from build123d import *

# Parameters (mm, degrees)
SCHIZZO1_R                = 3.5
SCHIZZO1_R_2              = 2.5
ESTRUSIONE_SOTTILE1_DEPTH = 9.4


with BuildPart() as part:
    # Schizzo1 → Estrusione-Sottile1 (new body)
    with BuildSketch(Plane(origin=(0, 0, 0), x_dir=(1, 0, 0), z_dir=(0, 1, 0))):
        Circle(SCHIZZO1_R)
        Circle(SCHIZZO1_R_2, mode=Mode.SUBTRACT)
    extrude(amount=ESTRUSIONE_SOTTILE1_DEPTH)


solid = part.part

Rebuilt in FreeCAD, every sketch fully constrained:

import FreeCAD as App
import Part
import Sketcher

doc = App.newDocument("Part")
body = doc.addObject("PartDesign::Body", "Body")

# Sketch on XZ plane
sketch1 = body.newObject("Sketcher::SketchObject", "Sketch")
sketch1.AttachmentSupport = (doc.getObject("XZ_Plane"), [""])
sketch1.MapMode = "FlatFace"
sketch1.addGeometry([
    Part.Circle(App.Vector(0, 0, 0), App.Vector(0, 0, 1), 3.5),
    Part.Circle(App.Vector(0, 0, 0), App.Vector(0, 0, 1), 2.5),
], False)
sketch1.addConstraint([
    Sketcher.Constraint("Coincident", 0, 3, -1, 1),
    Sketcher.Constraint("Coincident", 1, 3, -1, 1),
    Sketcher.Constraint("Diameter", 0, 7.0),
    Sketcher.Constraint("Diameter", 1, 5.0),
])
pad1 = body.newObject("PartDesign::Pad", "Pad")
pad1.Profile = sketch1
pad1.Length = 9.4
pad1.Reversed = True

doc.recompute()
